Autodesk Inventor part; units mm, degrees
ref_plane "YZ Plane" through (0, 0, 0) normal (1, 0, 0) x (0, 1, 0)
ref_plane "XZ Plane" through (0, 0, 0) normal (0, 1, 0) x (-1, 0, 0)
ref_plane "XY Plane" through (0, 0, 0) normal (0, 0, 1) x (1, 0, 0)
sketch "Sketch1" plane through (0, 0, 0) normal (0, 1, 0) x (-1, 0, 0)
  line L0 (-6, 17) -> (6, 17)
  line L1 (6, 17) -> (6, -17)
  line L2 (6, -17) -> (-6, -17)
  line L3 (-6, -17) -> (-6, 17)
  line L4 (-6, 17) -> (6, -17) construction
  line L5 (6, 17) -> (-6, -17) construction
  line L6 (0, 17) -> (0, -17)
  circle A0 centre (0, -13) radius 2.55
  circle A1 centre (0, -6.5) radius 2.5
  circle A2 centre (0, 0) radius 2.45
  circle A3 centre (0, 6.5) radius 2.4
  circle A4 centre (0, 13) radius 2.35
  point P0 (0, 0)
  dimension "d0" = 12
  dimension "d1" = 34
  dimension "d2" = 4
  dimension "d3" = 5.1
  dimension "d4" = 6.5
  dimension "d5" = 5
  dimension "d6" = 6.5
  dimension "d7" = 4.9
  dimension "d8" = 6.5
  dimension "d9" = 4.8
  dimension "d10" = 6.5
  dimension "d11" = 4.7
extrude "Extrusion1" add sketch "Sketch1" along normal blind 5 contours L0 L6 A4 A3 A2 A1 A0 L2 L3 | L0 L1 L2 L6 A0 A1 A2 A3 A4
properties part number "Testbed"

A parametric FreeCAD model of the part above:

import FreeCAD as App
import Part
import Sketcher
from FreeCAD import Vector
Q = App.Units.Quantity

doc = App.newDocument("Part")
params = doc.addObject("Spreadsheet::Sheet", "Params")
for row, (alias, value) in enumerate([
    ("sketch1_diameter", "5 mm"),
    ("sketch1_diameter2", "4.7 mm"),
    ("sketch1_diameter3", "4.8 mm"),
    ("sketch1_diameter4", "4.9 mm"),
    ("sketch1_diameter5", "5.1 mm"),
    ("pad1_length", "5 mm"),
], start=1):
    params.set(f"A{row}", alias)
    params.set(f"B{row}", "=" + value)
    params.setAlias(f"B{row}", alias)

body = doc.addObject("PartDesign::Body", "Body")

sketch1 = body.newObject("Sketcher::SketchObject", "Sketch")
sketch1.AttachmentSupport = (doc.getObject("XZ_Plane"), [""])
sketch1.MapMode = "FlatFace"
sketch1.addGeometry(Part.LineSegment(Vector(6, 17, 0), Vector(6, -17, 0)), False)
sketch1.addGeometry(Part.LineSegment(Vector(6, -17, 0), Vector(-6, -17, 0)), False)
sketch1.addGeometry(Part.LineSegment(Vector(-6, -17, 0), Vector(-6, 17, 0)), False)
sketch1.addGeometry(Part.LineSegment(Vector(-6, 17, 0), Vector(6, 17, 0)), False)
sketch1.addGeometry(Part.Circle(Vector(0, 13, 0), Vector(0, 0, 1), 2.35), False)
sketch1.addGeometry(Part.Circle(Vector(0, 6.5, 0), Vector(0, 0, 1), 2.4), False)
sketch1.addGeometry(Part.Circle(Vector(0, 0, 0), Vector(0, 0, 1), 2.45), False)
sketch1.addGeometry(Part.Circle(Vector(0, -6.5, 0), Vector(0, 0, 1), 2.5), False)
sketch1.addGeometry(Part.Circle(Vector(0, -13, 0), Vector(0, 0, 1), 2.55), False)
sketch1.addConstraint(Sketcher.Constraint("Coincident", 0, 2, 1, 1))
sketch1.addConstraint(Sketcher.Constraint("Coincident", 1, 2, 2, 1))
sketch1.addConstraint(Sketcher.Constraint("Coincident", 2, 2, 3, 1))
sketch1.addConstraint(Sketcher.Constraint("Coincident", 3, 2, 0, 1))
sketch1.addConstraint(Sketcher.Constraint("Vertical", 0))
sketch1.addConstraint(Sketcher.Constraint("Horizontal", 1))
sketch1.addConstraint(Sketcher.Constraint("Vertical", 2))
sketch1.addConstraint(Sketcher.Constraint("Horizontal", 3))
sketch1.addConstraint(Sketcher.Constraint("Coincident", 6, 3, -1, 1))
sketch1.addConstraint(Sketcher.Constraint("Symmetric", 5, 3, 7, 3, -1, 1))
sketch1.addConstraint(Sketcher.Constraint("Symmetric", 4, 3, 8, 3, -1, 1))
sketch1.addConstraint(Sketcher.Constraint("Symmetric", 0, 2, 2, 2, -1, 1))
sketch1.addConstraint(Sketcher.Constraint("PointOnObject", 4, 3, -2))
sketch1.addConstraint(Sketcher.Constraint("PointOnObject", 5, 3, -2))
sketch1.addConstraint(Sketcher.Constraint("Diameter", 7, Q("5 mm")))
sketch1.addConstraint(Sketcher.Constraint("Diameter", 4, Q("4.7 mm")))
sketch1.addConstraint(Sketcher.Constraint("Diameter", 5, Q("4.8 mm")))
sketch1.addConstraint(Sketcher.Constraint("Diameter", 6, Q("4.9 mm")))
sketch1.addConstraint(Sketcher.Constraint("Diameter", 8, Q("5.1 mm")))
sketch1.addConstraint(Sketcher.Constraint("DistanceX", 1, 2, 1, 1, Q("12 mm")))
sketch1.addConstraint(Sketcher.Constraint("DistanceY", 0, 2, 0, 1, Q("34 mm")))
sketch1.addConstraint(Sketcher.Constraint("DistanceY", 0, 2, 8, 3, Q("4 mm")))
sketch1.addConstraint(Sketcher.Constraint("DistanceY", -1, 1, 5, 3, Q("6.5 mm")))
sketch1.setExpression("Constraints[14]", "Params.sketch1_diameter")
sketch1.setExpression("Constraints[15]", "Params.sketch1_diameter2")
sketch1.setExpression("Constraints[16]", "Params.sketch1_diameter3")
sketch1.setExpression("Constraints[17]", "Params.sketch1_diameter4")
sketch1.setExpression("Constraints[18]", "Params.sketch1_diameter5")
pad1 = body.newObject("PartDesign::Pad", "Pad")
pad1.Profile = sketch1
pad1.setExpression("Length", "Params.pad1_length")
pad1.Reversed = True

doc.recompute()
